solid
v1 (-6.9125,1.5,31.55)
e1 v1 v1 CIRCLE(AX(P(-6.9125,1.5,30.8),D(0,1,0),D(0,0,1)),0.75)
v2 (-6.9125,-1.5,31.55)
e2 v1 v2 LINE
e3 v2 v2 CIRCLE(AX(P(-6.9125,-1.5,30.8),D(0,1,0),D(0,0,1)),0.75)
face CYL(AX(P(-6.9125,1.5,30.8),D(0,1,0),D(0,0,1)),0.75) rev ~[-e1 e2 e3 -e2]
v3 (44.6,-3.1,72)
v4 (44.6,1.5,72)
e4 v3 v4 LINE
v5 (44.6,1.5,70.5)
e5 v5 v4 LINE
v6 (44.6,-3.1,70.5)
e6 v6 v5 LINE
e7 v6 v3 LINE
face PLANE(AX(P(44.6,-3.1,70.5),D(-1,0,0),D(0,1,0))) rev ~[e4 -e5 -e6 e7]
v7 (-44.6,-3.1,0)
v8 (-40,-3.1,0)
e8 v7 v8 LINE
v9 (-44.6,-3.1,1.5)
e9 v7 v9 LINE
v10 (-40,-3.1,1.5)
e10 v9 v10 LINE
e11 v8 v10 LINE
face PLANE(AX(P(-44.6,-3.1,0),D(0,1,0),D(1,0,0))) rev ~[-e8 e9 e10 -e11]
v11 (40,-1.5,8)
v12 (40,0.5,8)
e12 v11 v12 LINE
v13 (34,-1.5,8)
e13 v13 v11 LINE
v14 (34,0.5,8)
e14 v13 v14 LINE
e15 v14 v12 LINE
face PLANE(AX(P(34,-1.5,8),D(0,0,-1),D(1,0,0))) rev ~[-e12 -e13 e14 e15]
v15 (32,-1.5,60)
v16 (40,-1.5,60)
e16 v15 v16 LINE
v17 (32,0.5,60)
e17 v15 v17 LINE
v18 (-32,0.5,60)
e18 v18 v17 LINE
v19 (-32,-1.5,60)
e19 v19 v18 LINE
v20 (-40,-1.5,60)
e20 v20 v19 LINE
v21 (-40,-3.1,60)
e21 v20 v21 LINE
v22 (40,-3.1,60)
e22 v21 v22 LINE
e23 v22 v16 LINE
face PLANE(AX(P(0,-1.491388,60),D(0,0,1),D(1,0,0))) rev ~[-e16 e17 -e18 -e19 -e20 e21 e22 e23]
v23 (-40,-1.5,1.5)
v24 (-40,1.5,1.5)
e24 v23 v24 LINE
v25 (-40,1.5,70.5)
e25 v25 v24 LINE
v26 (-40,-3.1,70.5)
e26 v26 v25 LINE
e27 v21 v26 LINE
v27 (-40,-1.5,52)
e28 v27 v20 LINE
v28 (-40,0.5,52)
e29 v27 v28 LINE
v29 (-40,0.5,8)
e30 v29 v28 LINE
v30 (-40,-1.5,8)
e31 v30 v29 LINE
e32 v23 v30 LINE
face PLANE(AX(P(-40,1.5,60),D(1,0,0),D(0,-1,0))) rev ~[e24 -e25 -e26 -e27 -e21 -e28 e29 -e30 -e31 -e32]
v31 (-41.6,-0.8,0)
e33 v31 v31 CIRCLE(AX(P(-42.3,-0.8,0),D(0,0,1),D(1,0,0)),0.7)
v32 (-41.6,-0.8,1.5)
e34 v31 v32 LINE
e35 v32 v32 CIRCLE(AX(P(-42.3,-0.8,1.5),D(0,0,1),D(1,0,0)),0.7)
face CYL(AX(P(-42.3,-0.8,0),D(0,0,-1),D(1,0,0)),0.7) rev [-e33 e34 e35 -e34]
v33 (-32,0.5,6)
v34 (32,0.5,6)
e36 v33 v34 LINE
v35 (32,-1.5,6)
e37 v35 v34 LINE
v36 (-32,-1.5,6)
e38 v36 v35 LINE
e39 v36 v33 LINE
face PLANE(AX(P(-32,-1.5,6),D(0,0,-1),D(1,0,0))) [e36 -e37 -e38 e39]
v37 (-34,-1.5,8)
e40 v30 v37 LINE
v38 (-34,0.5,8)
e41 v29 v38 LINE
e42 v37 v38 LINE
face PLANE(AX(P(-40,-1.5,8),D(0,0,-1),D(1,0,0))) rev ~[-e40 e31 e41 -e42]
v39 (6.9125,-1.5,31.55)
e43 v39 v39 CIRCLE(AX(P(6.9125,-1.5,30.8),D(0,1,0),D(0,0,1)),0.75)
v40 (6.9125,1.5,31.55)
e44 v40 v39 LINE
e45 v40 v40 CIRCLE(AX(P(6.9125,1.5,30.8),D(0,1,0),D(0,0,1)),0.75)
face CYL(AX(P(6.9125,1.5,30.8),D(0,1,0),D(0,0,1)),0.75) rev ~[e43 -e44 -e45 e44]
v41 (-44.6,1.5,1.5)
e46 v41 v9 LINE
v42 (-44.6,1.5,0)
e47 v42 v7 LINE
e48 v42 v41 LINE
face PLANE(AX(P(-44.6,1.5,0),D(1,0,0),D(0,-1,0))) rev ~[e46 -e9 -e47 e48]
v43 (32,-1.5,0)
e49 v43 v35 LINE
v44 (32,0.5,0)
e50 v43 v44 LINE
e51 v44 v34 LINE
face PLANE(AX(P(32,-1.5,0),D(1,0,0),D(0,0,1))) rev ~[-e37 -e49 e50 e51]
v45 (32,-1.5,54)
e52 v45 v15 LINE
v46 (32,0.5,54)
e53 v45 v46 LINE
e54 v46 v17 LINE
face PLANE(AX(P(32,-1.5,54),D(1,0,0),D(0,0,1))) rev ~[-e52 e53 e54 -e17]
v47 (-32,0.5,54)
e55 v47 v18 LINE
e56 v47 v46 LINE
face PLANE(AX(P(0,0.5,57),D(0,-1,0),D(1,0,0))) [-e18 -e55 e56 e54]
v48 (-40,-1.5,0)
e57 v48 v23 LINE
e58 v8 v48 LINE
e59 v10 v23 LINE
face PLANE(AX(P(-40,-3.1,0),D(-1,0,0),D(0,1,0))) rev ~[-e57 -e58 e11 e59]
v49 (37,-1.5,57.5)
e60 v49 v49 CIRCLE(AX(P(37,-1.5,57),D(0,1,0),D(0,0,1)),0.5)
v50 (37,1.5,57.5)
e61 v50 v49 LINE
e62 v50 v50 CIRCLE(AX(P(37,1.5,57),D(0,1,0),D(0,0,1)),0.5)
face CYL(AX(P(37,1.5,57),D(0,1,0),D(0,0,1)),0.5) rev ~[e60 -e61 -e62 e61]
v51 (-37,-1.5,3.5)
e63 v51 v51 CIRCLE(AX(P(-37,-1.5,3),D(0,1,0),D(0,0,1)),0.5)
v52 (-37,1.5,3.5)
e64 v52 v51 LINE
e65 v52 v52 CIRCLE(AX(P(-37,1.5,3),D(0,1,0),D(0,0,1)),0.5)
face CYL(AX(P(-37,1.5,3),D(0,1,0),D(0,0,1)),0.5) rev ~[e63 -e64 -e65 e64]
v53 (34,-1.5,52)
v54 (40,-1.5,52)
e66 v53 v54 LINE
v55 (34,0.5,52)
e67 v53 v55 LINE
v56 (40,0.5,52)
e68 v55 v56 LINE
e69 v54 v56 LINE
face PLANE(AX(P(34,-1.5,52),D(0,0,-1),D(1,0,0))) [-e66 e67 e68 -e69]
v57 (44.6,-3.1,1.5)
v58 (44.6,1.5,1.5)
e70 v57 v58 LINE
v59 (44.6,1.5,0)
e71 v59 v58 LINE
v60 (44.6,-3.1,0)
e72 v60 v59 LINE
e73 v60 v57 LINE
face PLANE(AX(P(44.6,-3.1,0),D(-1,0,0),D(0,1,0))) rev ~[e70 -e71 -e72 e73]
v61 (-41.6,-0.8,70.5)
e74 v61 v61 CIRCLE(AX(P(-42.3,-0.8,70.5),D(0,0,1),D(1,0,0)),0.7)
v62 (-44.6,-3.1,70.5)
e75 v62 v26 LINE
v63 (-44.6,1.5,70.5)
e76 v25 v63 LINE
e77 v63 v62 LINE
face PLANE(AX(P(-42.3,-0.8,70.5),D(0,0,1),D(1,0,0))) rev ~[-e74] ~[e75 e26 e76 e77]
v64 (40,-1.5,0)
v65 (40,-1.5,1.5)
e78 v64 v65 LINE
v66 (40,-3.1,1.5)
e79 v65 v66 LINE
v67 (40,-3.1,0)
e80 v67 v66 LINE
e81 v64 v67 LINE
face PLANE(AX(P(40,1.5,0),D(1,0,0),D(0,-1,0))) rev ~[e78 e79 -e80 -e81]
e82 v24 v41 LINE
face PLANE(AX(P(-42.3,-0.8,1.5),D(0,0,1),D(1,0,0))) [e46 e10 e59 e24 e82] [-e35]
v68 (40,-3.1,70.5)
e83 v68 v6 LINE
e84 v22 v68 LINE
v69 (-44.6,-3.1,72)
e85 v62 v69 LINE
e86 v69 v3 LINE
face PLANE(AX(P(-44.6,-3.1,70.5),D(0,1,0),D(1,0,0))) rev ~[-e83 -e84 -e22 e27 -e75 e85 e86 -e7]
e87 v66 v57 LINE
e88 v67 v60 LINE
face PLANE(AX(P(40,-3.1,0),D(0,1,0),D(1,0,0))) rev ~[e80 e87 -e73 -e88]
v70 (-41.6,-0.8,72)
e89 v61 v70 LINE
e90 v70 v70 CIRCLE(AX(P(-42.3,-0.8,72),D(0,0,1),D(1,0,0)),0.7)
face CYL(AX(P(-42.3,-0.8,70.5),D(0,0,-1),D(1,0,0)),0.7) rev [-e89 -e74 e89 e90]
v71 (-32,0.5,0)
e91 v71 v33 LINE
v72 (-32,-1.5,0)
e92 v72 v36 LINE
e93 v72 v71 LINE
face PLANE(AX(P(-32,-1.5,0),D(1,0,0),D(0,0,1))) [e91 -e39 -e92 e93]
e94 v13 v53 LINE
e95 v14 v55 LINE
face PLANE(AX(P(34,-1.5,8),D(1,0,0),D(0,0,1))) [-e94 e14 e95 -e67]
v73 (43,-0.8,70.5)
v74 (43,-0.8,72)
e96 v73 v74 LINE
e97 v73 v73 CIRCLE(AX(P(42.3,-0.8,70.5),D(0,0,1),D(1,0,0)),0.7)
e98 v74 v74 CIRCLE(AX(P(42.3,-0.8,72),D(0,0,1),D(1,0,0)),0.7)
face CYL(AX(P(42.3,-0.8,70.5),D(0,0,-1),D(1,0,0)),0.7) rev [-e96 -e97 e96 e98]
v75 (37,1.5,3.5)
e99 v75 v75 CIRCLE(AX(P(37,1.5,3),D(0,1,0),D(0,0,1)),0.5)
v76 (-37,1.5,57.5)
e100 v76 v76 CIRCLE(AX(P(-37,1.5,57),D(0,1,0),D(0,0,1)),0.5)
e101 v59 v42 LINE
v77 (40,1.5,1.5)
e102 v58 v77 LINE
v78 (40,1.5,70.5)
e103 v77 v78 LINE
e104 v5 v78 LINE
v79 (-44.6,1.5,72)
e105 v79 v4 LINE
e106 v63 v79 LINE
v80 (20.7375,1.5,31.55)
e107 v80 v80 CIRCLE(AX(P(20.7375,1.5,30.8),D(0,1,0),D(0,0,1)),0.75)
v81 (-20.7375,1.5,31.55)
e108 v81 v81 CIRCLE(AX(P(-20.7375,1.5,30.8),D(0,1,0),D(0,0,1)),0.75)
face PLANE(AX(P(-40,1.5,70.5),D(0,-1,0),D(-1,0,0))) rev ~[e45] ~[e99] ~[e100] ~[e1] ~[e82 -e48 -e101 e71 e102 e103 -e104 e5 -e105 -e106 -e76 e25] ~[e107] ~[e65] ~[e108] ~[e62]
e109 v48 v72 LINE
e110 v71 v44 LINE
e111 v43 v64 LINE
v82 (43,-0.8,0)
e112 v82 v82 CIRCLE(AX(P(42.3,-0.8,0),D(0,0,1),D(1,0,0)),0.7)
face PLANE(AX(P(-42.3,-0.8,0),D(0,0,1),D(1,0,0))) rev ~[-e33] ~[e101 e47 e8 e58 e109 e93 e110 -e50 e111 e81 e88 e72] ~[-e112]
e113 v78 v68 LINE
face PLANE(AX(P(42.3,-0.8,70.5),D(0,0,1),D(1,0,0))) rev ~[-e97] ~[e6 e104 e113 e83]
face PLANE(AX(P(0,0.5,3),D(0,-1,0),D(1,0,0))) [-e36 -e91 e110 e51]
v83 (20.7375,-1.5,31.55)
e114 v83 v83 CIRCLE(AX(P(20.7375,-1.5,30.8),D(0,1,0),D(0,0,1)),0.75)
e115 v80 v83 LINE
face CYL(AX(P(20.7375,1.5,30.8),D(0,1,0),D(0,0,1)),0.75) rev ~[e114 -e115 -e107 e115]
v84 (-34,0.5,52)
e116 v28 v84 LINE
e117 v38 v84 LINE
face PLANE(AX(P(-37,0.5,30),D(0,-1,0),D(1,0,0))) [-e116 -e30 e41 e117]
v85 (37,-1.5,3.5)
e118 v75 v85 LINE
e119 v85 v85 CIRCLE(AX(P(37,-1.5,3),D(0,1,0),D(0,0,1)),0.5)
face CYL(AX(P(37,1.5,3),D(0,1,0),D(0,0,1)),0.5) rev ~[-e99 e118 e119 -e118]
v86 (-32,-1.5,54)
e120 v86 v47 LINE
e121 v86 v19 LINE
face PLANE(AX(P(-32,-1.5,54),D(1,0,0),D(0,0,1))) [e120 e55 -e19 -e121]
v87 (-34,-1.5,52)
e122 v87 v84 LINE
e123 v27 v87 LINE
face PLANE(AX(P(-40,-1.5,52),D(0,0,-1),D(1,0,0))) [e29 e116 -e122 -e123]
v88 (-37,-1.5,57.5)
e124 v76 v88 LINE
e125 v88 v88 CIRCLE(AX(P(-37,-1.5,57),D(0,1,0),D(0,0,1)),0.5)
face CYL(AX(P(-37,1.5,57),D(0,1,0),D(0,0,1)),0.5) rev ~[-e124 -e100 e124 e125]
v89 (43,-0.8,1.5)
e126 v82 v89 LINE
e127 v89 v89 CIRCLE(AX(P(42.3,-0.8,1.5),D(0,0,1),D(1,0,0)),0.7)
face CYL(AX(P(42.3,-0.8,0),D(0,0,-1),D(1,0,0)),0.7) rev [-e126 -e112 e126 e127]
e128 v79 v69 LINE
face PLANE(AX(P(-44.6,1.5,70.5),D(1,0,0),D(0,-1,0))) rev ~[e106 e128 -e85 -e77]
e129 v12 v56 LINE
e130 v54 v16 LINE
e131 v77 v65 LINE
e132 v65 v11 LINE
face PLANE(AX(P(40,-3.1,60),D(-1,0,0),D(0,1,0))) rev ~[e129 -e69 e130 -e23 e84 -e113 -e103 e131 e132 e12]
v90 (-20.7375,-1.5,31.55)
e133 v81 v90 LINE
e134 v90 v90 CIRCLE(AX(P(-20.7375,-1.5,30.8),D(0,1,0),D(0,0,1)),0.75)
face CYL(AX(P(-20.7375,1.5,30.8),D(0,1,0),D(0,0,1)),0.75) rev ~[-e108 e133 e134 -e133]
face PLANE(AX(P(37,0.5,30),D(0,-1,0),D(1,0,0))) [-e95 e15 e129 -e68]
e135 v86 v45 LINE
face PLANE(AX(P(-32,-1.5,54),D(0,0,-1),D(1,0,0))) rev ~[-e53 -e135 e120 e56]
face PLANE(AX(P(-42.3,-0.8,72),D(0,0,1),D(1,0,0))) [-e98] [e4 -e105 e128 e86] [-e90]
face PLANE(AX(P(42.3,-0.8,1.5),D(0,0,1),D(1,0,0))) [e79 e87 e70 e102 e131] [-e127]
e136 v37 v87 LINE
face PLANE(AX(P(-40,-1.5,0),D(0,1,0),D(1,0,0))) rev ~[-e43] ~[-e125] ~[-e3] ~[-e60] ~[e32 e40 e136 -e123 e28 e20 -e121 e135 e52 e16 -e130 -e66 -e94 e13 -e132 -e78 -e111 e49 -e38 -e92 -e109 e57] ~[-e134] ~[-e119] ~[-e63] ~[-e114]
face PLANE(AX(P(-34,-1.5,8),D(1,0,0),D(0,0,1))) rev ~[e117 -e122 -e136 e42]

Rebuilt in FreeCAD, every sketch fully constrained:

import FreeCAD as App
import Part
import Sketcher

V = App.Vector


def add_polygon(sketch, points):
    """Adds a closed chain of lines whose ends are joined by coincident constraints."""
    first, n = sketch.GeometryCount, len(points)
    for a, b in zip(points, points[1:] + points[:1]):
        sketch.addGeometry(Part.LineSegment(App.Vector(*a, 0), App.Vector(*b, 0)), False)
    for i in range(n):
        sketch.addConstraint(Sketcher.Constraint("Coincident", first + i, 2, first + (i + 1) % n, 1))

doc = App.newDocument("Part")
params = doc.addObject("Spreadsheet::Sheet", "Params")
for row, (alias, value) in enumerate([
    ("sketch1_width", "80 mm"),
    ("sketch1_height", "3 mm"),
    ("pad1_length", "60 mm"),
    ("sketch2_diameter", "1 mm"),
    ("sketch3_width", "64 mm"),
    ("sketch3_width2", "6 mm"),
    ("sketch3_height", "44 mm"),
    ("pocket2_length", "2 mm"),
    ("sketch4_diameter", "1.4 mm"),
    ("sketch4_width", "4.6 mm"),
    ("pad2_length", "1.5 mm"),
    ("sketch5_width", "80 mm"),
    ("sketch5_height", "4.6 mm"),
    ("pad3_length", "12 mm"),
    ("sketch6_diameter", "1.4 mm"),
    ("sketch6_width", "4.6 mm"),
    ("pad4_length", "1.5 mm"),
    ("sketch7_diameter", "1.5 mm"),
], start=1):
    params.set(f"A{row}", alias)
    params.set(f"B{row}", "=" + value)
    params.setAlias(f"B{row}", alias)

body = doc.addObject("PartDesign::Body", "Body")

sketch1 = body.newObject("Sketcher::SketchObject", "Sketch")
sketch1.AttachmentSupport = (doc.getObject("XY_Plane"), [""])
sketch1.MapMode = "FlatFace"
add_polygon(sketch1, [(-40, 1.5), (-40, -1.5), (40, -1.5), (40, 1.5)])
sketch1.addConstraint(Sketcher.Constraint("Vertical", 0))
sketch1.addConstraint(Sketcher.Constraint("Horizontal", 1))
sketch1.addConstraint(Sketcher.Constraint("Vertical", 2))
sketch1.addConstraint(Sketcher.Constraint("Horizontal", 3))
sketch1.addConstraint(Sketcher.Constraint("Symmetric", 0, 2, 2, 2, -1, 1))
sketch1.addConstraint(Sketcher.Constraint("DistanceX", 1, 1, 1, 2, 80.0))
sketch1.addConstraint(Sketcher.Constraint("DistanceY", 0, 2, 0, 1, 3.0))
sketch1.setExpression("Constraints[9]", "Params.sketch1_width")
sketch1.setExpression("Constraints[10]", "Params.sketch1_height")
pad1 = body.newObject("PartDesign::Pad", "Pad")
pad1.Profile = sketch1
pad1.setExpression("Length", "Params.pad1_length")

sketch2 = body.newObject("Sketcher::SketchObject", "Sketch001")
sketch2.AttachmentSupport = (doc.getObject("XZ_Plane"), [""])
sketch2.MapMode = "FlatFace"
sketch2.AttachmentOffset = App.Placement(V(0, 0, -1.5), App.Rotation())
sketch2.addGeometry(Part.Circle(V(-37, 57, 0), V(0, 0, 1), 0.5), False)
sketch2.addGeometry(Part.Circle(V(37, 57, 0), V(0, 0, 1), 0.5), False)
sketch2.addGeometry(Part.Circle(V(-37, 3, 0), V(0, 0, 1), 0.5), False)
sketch2.addGeometry(Part.Circle(V(37, 3, 0), V(0, 0, 1), 0.5), False)
sketch2.addConstraint(Sketcher.Constraint("Equal", 0, 1))
sketch2.addConstraint(Sketcher.Constraint("Equal", 1, 2))
sketch2.addConstraint(Sketcher.Constraint("Equal", 2, 3))
sketch2.addConstraint(Sketcher.Constraint("Symmetric", 0, 3, 1, 3, -2))
sketch2.addConstraint(Sketcher.Constraint("Symmetric", 2, 3, 3, 3, -2))
sketch2.addConstraint(Sketcher.Constraint("Vertical", 0, 3, 2, 3))
sketch2.addConstraint(Sketcher.Constraint("Diameter", 0, 1.0))
sketch2.addConstraint(Sketcher.Constraint("DistanceX", 0, 3, -1, 1, 37.0))
sketch2.addConstraint(Sketcher.Constraint("DistanceY", -1, 1, 0, 3, 57.0))
sketch2.addConstraint(Sketcher.Constraint("DistanceY", -1, 1, 2, 3, 3.0))
sketch2.setExpression("Constraints[6]", "Params.sketch2_diameter")
pocket1 = body.newObject("PartDesign::Pocket", "Pocket")
pocket1.Profile = sketch2
pocket1.Type = "ThroughAll"
pocket1.Reversed = True

sketch3 = body.newObject("Sketcher::SketchObject", "Sketch002")
sketch3.AttachmentSupport = (doc.getObject("XZ_Plane"), [""])
sketch3.MapMode = "FlatFace"
sketch3.AttachmentOffset = App.Placement(V(0, 0, 1.5), App.Rotation())
add_polygon(sketch3, [(-32, 60), (-32, 54), (32, 54), (32, 60)])
add_polygon(sketch3, [(34, 52), (34, 8), (40, 8), (40, 52)])
add_polygon(sketch3, [(-32, 6), (-32, 0), (32, 0), (32, 6)])
add_polygon(sketch3, [(-40, 52), (-40, 8), (-34, 8), (-34, 52)])
sketch3.addConstraint(Sketcher.Constraint("Vertical", 0))
sketch3.addConstraint(Sketcher.Constraint("Horizontal", 1))
sketch3.addConstraint(Sketcher.Constraint("Vertical", 2))
sketch3.addConstraint(Sketcher.Constraint("Horizontal", 3))
sketch3.addConstraint(Sketcher.Constraint("Vertical", 4))
sketch3.addConstraint(Sketcher.Constraint("Horizontal", 5))
sketch3.addConstraint(Sketcher.Constraint("Vertical", 6))
sketch3.addConstraint(Sketcher.Constraint("Horizontal", 7))
sketch3.addConstraint(Sketcher.Constraint("Vertical", 8))
sketch3.addConstraint(Sketcher.Constraint("Horizontal", 9))
sketch3.addConstraint(Sketcher.Constraint("Vertical", 10))
sketch3.addConstraint(Sketcher.Constraint("Horizontal", 11))
sketch3.addConstraint(Sketcher.Constraint("Vertical", 12))
sketch3.addConstraint(Sketcher.Constraint("Horizontal", 13))
sketch3.addConstraint(Sketcher.Constraint("Vertical", 14))
sketch3.addConstraint(Sketcher.Constraint("Horizontal", 15))
sketch3.addConstraint(Sketcher.Constraint("Symmetric", 8, 2, 9, 2, -1, 1))
sketch3.addConstraint(Sketcher.Constraint("Symmetric", 5, 2, 12, 2, -2))
sketch3.addConstraint(Sketcher.Constraint("Symmetric", 7, 2, 14, 2, -2))
sketch3.addConstraint(Sketcher.Constraint("Vertical", 3, 2, 8, 2))
sketch3.addConstraint(Sketcher.Constraint("Vertical", 2, 2, 9, 2))
sketch3.addConstraint(Sketcher.Constraint("Equal", 15, 0))
sketch3.addConstraint(Sketcher.Constraint("Equal", 2, 8))
sketch3.addConstraint(Sketcher.Constraint("DistanceX", 1, 1, 1, 2, 64.0))
sketch3.addConstraint(Sketcher.Constraint("DistanceX", 5, 1, 5, 2, 6.0))
sketch3.addConstraint(Sketcher.Constraint("DistanceY", 4, 2, 4, 1, 44.0))
sketch3.addConstraint(Sketcher.Constraint("DistanceY", -1, 1, 0, 2, 54.0))
sketch3.addConstraint(Sketcher.Constraint("DistanceX", -1, 1, 4, 2, 34.0))
sketch3.addConstraint(Sketcher.Constraint("DistanceY", -1, 1, 4, 2, 8.0))
sketch3.setExpression("Constraints[39]", "Params.sketch3_width")
sketch3.setExpression("Constraints[40]", "Params.sketch3_width2")
sketch3.setExpression("Constraints[41]", "Params.sketch3_height")
pocket2 = body.newObject("PartDesign::Pocket", "Pocket001")
pocket2.Profile = sketch3
pocket2.setExpression("Length", "Params.pocket2_length")

sketch4 = body.newObject("Sketcher::SketchObject", "Sketch003")
sketch4.AttachmentSupport = (doc.getObject("XY_Plane"), [""])
sketch4.MapMode = "FlatFace"
add_polygon(sketch4, [(-40, 1.5), (-44.6, 1.5), (-44.6, -3.1), (-40, -3.1)])
sketch4.addGeometry(Part.Circle(V(-42.3, -0.8, 0), V(0, 0, 1), 0.7), False)
add_polygon(sketch4, [(44.6, 1.5), (40, 1.5), (40, -3.1), (44.6, -3.1)])
sketch4.addGeometry(Part.Circle(V(42.3, -0.8, 0), V(0, 0, 1), 0.7), False)
sketch4.addConstraint(Sketcher.Constraint("Horizontal", 0))
sketch4.addConstraint(Sketcher.Constraint("Vertical", 1))
sketch4.addConstraint(Sketcher.Constraint("Horizontal", 2))
sketch4.addConstraint(Sketcher.Constraint("Vertical", 3))
sketch4.addConstraint(Sketcher.Constraint("Horizontal", 5))
sketch4.addConstraint(Sketcher.Constraint("Vertical", 6))
sketch4.addConstraint(Sketcher.Constraint("Horizontal", 7))
sketch4.addConstraint(Sketcher.Constraint("Vertical", 8))
sketch4.addConstraint(Sketcher.Constraint("Equal", 4, 9))
sketch4.addConstraint(Sketcher.Constraint("Symmetric", 4, 3, 9, 3, -2))
sketch4.addConstraint(Sketcher.Constraint("Symmetric", 3, 2, 5, 2, -2))
sketch4.addConstraint(Sketcher.Constraint("Symmetric", 1, 2, 7, 2, -2))
sketch4.addConstraint(Sketcher.Constraint("Equal", 7, 1))
sketch4.addConstraint(Sketcher.Constraint("Diameter", 4, 1.4))
sketch4.addConstraint(Sketcher.Constraint("DistanceX", 0, 2, 0, 1, 4.6))
sketch4.addConstraint(Sketcher.Constraint("DistanceX", 2, 2, -1, 1, 40.0))
sketch4.addConstraint(Sketcher.Constraint("DistanceX", 4, 3, -1, 1, 42.3))
sketch4.addConstraint(Sketcher.Constraint("DistanceY", 4, 3, -1, 1, 0.8))
sketch4.addConstraint(Sketcher.Constraint("DistanceY", -1, 1, 0, 2, 1.5))
sketch4.setExpression("Constraints[21]", "Params.sketch4_diameter")
sketch4.setExpression("Constraints[22]", "Params.sketch4_width")
pad2 = body.newObject("PartDesign::Pad", "Pad001")
pad2.Profile = sketch4
pad2.setExpression("Length", "Params.pad2_length")

sketch5 = body.newObject("Sketcher::SketchObject", "Sketch004")
sketch5.AttachmentSupport = (doc.getObject("XY_Plane"), [""])
sketch5.MapMode = "FlatFace"
sketch5.AttachmentOffset = App.Placement(V(0, 0, 60), App.Rotation())
add_polygon(sketch5, [(-40, -3.1), (40, -3.1), (40, 1.5), (-40, 1.5)])
sketch5.addConstraint(Sketcher.Constraint("Horizontal", 0))
sketch5.addConstraint(Sketcher.Constraint("Vertical", 1))
sketch5.addConstraint(Sketcher.Constraint("Horizontal", 2))
sketch5.addConstraint(Sketcher.Constraint("Vertical", 3))
sketch5.addConstraint(Sketcher.Constraint("DistanceX", 0, 1, 0, 2, 80.0))
sketch5.addConstraint(Sketcher.Constraint("DistanceY", 1, 1, 1, 2, 4.6))
sketch5.addConstraint(Sketcher.Constraint("DistanceX", -1, 1, 0, 2, 40.0))
sketch5.addConstraint(Sketcher.Constraint("DistanceY", 0, 2, -1, 1, 3.1))
sketch5.setExpression("Constraints[8]", "Params.sketch5_width")
sketch5.setExpression("Constraints[9]", "Params.sketch5_height")
pad3 = body.newObject("PartDesign::Pad", "Pad002")
pad3.Profile = sketch5
pad3.setExpression("Length", "Params.pad3_length")

sketch6 = body.newObject("Sketcher::SketchObject", "Sketch005")
sketch6.AttachmentSupport = (doc.getObject("XY_Plane"), [""])
sketch6.MapMode = "FlatFace"
sketch6.AttachmentOffset = App.Placement(V(0, 0, 70.5), App.Rotation())
add_polygon(sketch6, [(-40, 1.5), (-44.6, 1.5), (-44.6, -3.1), (-40, -3.1)])
sketch6.addGeometry(Part.Circle(V(-42.3, -0.8, 0), V(0, 0, 1), 0.7), False)
add_polygon(sketch6, [(44.6, 1.5), (40, 1.5), (40, -3.1), (44.6, -3.1)])
sketch6.addGeometry(Part.Circle(V(42.3, -0.8, 0), V(0, 0, 1), 0.7), False)
sketch6.addConstraint(Sketcher.Constraint("Horizontal", 0))
sketch6.addConstraint(Sketcher.Constraint("Vertical", 1))
sketch6.addConstraint(Sketcher.Constraint("Horizontal", 2))
sketch6.addConstraint(Sketcher.Constraint("Vertical", 3))
sketch6.addConstraint(Sketcher.Constraint("Horizontal", 5))
sketch6.addConstraint(Sketcher.Constraint("Vertical", 6))
sketch6.addConstraint(Sketcher.Constraint("Horizontal", 7))
sketch6.addConstraint(Sketcher.Constraint("Vertical", 8))
sketch6.addConstraint(Sketcher.Constraint("Equal", 4, 9))
sketch6.addConstraint(Sketcher.Constraint("Symmetric", 4, 3, 9, 3, -2))
sketch6.addConstraint(Sketcher.Constraint("Symmetric", 3, 2, 5, 2, -2))
sketch6.addConstraint(Sketcher.Constraint("Symmetric", 1, 2, 7, 2, -2))
sketch6.addConstraint(Sketcher.Constraint("Equal", 7, 1))
sketch6.addConstraint(Sketcher.Constraint("Diameter", 4, 1.4))
sketch6.addConstraint(Sketcher.Constraint("DistanceX", 0, 2, 0, 1, 4.6))
sketch6.addConstraint(Sketcher.Constraint("DistanceX", 2, 2, -1, 1, 40.0))
sketch6.addConstraint(Sketcher.Constraint("DistanceX", 4, 3, -1, 1, 42.3))
sketch6.addConstraint(Sketcher.Constraint("DistanceY", 4, 3, -1, 1, 0.8))
sketch6.addConstraint(Sketcher.Constraint("DistanceY", -1, 1, 0, 2, 1.5))
sketch6.setExpression("Constraints[21]", "Params.sketch6_diameter")
sketch6.setExpression("Constraints[22]", "Params.sketch6_width")
pad4 = body.newObject("PartDesign::Pad", "Pad003")
pad4.Profile = sketch6
pad4.setExpression("Length", "Params.pad4_length")

sketch7 = body.newObject("Sketcher::SketchObject", "Sketch006")
sketch7.AttachmentSupport = (doc.getObject("XZ_Plane"), [""])
sketch7.MapMode = "FlatFace"
sketch7.AttachmentOffset = App.Placement(V(0, 0, -1.5), App.Rotation())
sketch7.addGeometry(Part.Circle(V(20.7375, 30.8, 0), V(0, 0, 1), 0.75), False)
sketch7.addGeometry(Part.Circle(V(6.9125, 30.8, 0), V(0, 0, 1), 0.75), False)
sketch7.addGeometry(Part.Circle(V(-6.9125, 30.8, 0), V(0, 0, 1), 0.75), False)
sketch7.addGeometry(Part.Circle(V(-20.7375, 30.8, 0), V(0, 0, 1), 0.75), False)
sketch7.addConstraint(Sketcher.Constraint("Equal", 0, 1))
sketch7.addConstraint(Sketcher.Constraint("Equal", 1, 2))
sketch7.addConstraint(Sketcher.Constraint("Equal", 2, 3))
sketch7.addConstraint(Sketcher.Constraint("Symmetric", 1, 3, 2, 3, -2))
sketch7.addConstraint(Sketcher.Constraint("Symmetric", 0, 3, 3, 3, -2))
sketch7.addConstraint(Sketcher.Constraint("Horizontal", 0, 3, 1, 3))
sketch7.addConstraint(Sketcher.Constraint("Diameter", 0, 1.5))
sketch7.addConstraint(Sketcher.Constraint("DistanceY", -1, 1, 0, 3, 30.8))
sketch7.addConstraint(Sketcher.Constraint("DistanceX", 2, 3, 0, 3, 27.65))
sketch7.addConstraint(Sketcher.Constraint("DistanceX", 1, 3, 0, 3, 13.825))
sketch7.setExpression("Constraints[6]", "Params.sketch7_diameter")
pocket3 = body.newObject("PartDesign::Pocket", "Pocket002")
pocket3.Profile = sketch7
pocket3.Type = "ThroughAll"
pocket3.Reversed = True

doc.recompute()
